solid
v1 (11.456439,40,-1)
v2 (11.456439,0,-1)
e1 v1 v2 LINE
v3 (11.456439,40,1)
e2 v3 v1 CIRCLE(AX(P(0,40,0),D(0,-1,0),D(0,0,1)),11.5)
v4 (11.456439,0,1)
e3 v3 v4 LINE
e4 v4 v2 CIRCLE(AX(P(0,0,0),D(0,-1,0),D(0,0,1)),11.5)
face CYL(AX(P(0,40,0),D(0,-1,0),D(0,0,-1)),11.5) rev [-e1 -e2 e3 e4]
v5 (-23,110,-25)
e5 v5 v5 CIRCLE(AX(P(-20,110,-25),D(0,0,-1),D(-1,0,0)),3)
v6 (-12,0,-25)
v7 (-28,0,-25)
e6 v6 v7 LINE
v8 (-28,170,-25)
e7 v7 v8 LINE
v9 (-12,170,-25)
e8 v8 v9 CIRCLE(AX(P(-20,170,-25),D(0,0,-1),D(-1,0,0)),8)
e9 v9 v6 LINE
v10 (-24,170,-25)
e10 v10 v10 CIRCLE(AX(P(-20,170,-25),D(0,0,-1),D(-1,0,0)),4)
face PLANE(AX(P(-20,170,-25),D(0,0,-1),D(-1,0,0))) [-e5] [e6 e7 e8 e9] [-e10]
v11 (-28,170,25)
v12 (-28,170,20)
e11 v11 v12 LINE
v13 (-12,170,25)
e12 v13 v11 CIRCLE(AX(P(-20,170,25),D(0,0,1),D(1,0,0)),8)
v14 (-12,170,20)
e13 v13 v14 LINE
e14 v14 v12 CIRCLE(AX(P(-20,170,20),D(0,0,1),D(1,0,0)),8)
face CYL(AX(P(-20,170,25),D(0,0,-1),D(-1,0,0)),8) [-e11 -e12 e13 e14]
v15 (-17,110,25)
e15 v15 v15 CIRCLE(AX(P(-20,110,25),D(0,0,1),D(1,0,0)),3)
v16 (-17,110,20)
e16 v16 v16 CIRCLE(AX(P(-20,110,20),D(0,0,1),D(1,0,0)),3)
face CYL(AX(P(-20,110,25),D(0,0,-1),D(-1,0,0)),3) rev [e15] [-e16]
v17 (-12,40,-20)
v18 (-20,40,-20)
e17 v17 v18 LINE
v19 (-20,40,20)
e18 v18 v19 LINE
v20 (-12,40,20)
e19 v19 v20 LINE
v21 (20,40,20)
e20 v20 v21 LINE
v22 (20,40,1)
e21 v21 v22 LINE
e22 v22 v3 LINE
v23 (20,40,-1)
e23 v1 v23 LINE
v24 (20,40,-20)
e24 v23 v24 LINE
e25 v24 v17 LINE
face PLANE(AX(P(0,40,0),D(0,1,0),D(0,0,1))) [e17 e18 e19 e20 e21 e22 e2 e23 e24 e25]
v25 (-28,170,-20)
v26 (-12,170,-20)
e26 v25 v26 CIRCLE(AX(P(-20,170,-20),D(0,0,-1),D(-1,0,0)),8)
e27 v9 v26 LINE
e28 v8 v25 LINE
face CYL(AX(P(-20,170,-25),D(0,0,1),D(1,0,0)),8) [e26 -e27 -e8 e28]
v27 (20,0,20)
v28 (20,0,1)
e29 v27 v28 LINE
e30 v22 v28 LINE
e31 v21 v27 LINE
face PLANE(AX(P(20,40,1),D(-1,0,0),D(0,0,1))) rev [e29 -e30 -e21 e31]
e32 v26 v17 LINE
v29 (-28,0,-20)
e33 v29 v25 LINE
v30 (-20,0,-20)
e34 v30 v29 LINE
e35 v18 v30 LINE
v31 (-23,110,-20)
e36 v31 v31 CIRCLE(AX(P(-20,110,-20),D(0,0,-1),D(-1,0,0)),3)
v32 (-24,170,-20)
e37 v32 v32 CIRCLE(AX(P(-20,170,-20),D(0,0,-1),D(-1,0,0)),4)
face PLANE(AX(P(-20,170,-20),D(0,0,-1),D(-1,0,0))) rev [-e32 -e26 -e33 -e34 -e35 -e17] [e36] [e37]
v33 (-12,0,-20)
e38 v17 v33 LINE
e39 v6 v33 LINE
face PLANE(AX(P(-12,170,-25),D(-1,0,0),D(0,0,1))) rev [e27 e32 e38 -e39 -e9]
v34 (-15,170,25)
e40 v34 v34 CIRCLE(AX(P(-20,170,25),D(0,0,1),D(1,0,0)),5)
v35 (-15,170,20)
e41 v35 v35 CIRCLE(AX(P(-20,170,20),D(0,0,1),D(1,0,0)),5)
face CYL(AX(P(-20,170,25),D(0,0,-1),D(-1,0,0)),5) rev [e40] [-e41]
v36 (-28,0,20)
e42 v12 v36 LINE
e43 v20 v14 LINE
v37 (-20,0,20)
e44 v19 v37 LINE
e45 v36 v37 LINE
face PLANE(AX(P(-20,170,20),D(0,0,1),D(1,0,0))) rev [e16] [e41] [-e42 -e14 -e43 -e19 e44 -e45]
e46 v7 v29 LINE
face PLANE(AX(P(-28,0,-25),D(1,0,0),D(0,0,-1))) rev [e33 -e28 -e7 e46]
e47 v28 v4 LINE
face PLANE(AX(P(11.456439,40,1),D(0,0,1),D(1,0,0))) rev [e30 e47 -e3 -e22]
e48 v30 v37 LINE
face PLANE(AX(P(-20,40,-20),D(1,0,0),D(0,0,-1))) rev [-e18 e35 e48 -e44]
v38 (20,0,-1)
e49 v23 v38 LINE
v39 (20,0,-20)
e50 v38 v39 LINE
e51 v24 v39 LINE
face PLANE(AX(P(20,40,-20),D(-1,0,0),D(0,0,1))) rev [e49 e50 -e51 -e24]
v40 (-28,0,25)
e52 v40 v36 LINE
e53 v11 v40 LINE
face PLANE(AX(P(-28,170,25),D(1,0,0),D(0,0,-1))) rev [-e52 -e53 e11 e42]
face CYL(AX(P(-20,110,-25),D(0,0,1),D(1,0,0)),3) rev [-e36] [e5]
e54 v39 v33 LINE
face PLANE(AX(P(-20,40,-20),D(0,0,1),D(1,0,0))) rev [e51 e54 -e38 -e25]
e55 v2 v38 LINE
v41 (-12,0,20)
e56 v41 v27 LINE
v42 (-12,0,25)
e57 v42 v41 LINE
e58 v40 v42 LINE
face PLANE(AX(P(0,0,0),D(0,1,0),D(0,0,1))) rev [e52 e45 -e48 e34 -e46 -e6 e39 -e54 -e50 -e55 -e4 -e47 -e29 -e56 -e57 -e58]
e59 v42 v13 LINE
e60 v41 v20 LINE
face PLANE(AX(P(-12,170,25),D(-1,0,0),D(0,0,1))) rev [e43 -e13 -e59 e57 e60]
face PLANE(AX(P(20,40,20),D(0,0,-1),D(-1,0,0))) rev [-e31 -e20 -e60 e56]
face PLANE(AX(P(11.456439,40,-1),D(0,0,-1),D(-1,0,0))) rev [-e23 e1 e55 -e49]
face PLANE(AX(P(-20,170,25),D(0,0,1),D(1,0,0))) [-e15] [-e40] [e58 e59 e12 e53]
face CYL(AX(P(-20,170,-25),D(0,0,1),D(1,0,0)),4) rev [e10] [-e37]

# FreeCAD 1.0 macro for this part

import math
import FreeCAD as App
import Part
import Sketcher

V = App.Vector

doc = App.newDocument("Part")
body = doc.addObject("PartDesign::Body", "Body")

# Sketch on XZ plane
sketch1 = body.newObject("Sketcher::SketchObject", "Sketch")
sketch1.AttachmentSupport = (doc.getObject("XZ_Plane"), [""])
sketch1.MapMode = "FlatFace"
sketch1.addGeometry(Part.LineSegment(V(20, -20, 0), V(-20, -20, 0)), False)
sketch1.addGeometry(Part.LineSegment(V(-20, -20, 0), V(-20, 20, 0)), False)
sketch1.addGeometry(Part.LineSegment(V(-20, 20, 0), V(20, 20, 0)), False)
sketch1.addGeometry(Part.LineSegment(V(20, 20, 0), V(20, 1, 0)), False)
sketch1.addGeometry(Part.LineSegment(V(20, 1, 0), V(11.5, 1, 0)), False)
sketch1.addGeometry(Part.ArcOfCircle(Part.Circle(V(0, 0, 0), V(0, 0, 1), 11.5), math.radians(5), math.radians(355)), False)
sketch1.addGeometry(Part.LineSegment(V(11.5, -1, 0), V(20, -1, 0)), False)
sketch1.addGeometry(Part.LineSegment(V(20, -1, 0), V(20, -20, 0)), False)
sketch1.addConstraint(Sketcher.Constraint("Coincident", 0, 2, 1, 1))
sketch1.addConstraint(Sketcher.Constraint("Coincident", 1, 2, 2, 1))
sketch1.addConstraint(Sketcher.Constraint("Coincident", 2, 2, 3, 1))
sketch1.addConstraint(Sketcher.Constraint("Coincident", 3, 2, 4, 1))
sketch1.addConstraint(Sketcher.Constraint("Coincident", 4, 2, 5, 1))
sketch1.addConstraint(Sketcher.Constraint("Coincident", 5, 2, 6, 1))
sketch1.addConstraint(Sketcher.Constraint("Coincident", 6, 2, 7, 1))
sketch1.addConstraint(Sketcher.Constraint("Coincident", 7, 2, 0, 1))
sketch1.addConstraint(Sketcher.Constraint("Horizontal", 0))
sketch1.addConstraint(Sketcher.Constraint("Vertical", 1))
sketch1.addConstraint(Sketcher.Constraint("Horizontal", 2))
sketch1.addConstraint(Sketcher.Constraint("Vertical", 3))
sketch1.addConstraint(Sketcher.Constraint("Horizontal", 4))
sketch1.addConstraint(Sketcher.Constraint("Horizontal", 6))
sketch1.addConstraint(Sketcher.Constraint("Vertical", 7))
sketch1.addConstraint(Sketcher.Constraint("Coincident", 5, 3, -1, 1))
sketch1.addConstraint(Sketcher.Constraint("Symmetric", 0, 2, 2, 2, -1, 1))
sketch1.addConstraint(Sketcher.Constraint("Symmetric", 3, 2, 6, 2, -1))
sketch1.addConstraint(Sketcher.Constraint("Equal", 2, 1))
sketch1.addConstraint(Sketcher.Constraint("Radius", 5, 11.5))
sketch1.addConstraint(Sketcher.Constraint("DistanceX", 0, 2, 0, 1, 40.0))
sketch1.addConstraint(Sketcher.Constraint("DistanceY", 3, 2, 3, 1, 19.0))
pad1 = body.newObject("PartDesign::Pad", "Pad")
pad1.Profile = sketch1
pad1.Length = 40
pad1.Reversed = True

# Sketch on XY plane
sketch2 = body.newObject("Sketcher::SketchObject", "Sketch001")
sketch2.AttachmentSupport = (doc.getObject("XY_Plane"), [""])
sketch2.MapMode = "FlatFace"
sketch2.AttachmentOffset = App.Placement(V(0, 0, 20), App.Rotation())
sketch2.addGeometry(Part.LineSegment(V(-28, 170, 0), V(-28, 0, 0)), False)
sketch2.addGeometry(Part.LineSegment(V(-28, 0, 0), V(-12, 0, 0)), False)
sketch2.addGeometry(Part.LineSegment(V(-12, 0, 0), V(-12, 170, 0)), False)
sketch2.addGeometry(Part.ArcOfCircle(Part.Circle(V(-20, 170, 0), V(0, 0, 1), 8), math.radians(0), math.radians(180)), False)
sketch2.addGeometry(Part.Circle(V(-20, 110, 0), V(0, 0, 1), 3), False)
sketch2.addGeometry(Part.Circle(V(-20, 170, 0), V(0, 0, 1), 5), False)
sketch2.addConstraint(Sketcher.Constraint("Coincident", 0, 2, 1, 1))
sketch2.addConstraint(Sketcher.Constraint("Coincident", 1, 2, 2, 1))
sketch2.addConstraint(Sketcher.Constraint("Tangent", 2, 2, 3, 1))
sketch2.addConstraint(Sketcher.Constraint("Tangent", 3, 2, 0, 1))
sketch2.addConstraint(Sketcher.Constraint("Vertical", 0))
sketch2.addConstraint(Sketcher.Constraint("Horizontal", 1))
sketch2.addConstraint(Sketcher.Constraint("Vertical", 2))
sketch2.addConstraint(Sketcher.Constraint("Coincident", 5, 3, 3, 3))
sketch2.addConstraint(Sketcher.Constraint("PointOnObject", 0, 2, -1))
sketch2.addConstraint(Sketcher.Constraint("Vertical", 3, 3, 4, 3))
sketch2.addConstraint(Sketcher.Constraint("Diameter", 4, 6.0))
sketch2.addConstraint(Sketcher.Constraint("Diameter", 5, 10.0))
sketch2.addConstraint(Sketcher.Constraint("Radius", 3, 8.0))
sketch2.addConstraint(Sketcher.Constraint("DistanceY", 0, 2, 0, 1, 170.0))
sketch2.addConstraint(Sketcher.Constraint("DistanceX", 3, 3, -1, 1, 20.0))
sketch2.addConstraint(Sketcher.Constraint("DistanceY", -1, 1, 4, 3, 110.0))
pad2 = body.newObject("PartDesign::Pad", "Pad001")
pad2.Profile = sketch2
pad2.Length = 5

# Sketch on XY plane
sketch3 = body.newObject("Sketcher::SketchObject", "Sketch002")
sketch3.AttachmentSupport = (doc.getObject("XY_Plane"), [""])
sketch3.MapMode = "FlatFace"
sketch3.AttachmentOffset = App.Placement(V(0, 0, -25), App.Rotation())
sketch3.addGeometry(Part.LineSegment(V(-12, 0, 0), V(-28, 0, 0)), False)
sketch3.addGeometry(Part.LineSegment(V(-28, 0, 0), V(-28, 170, 0)), False)
sketch3.addGeometry(Part.ArcOfCircle(Part.Circle(V(-20, 170, 0), V(0, 0, 1), 8), math.radians(0), math.radians(180)), False)
sketch3.addGeometry(Part.LineSegment(V(-12, 170, 0), V(-12, 0, 0)), False)
sketch3.addGeometry(Part.Circle(V(-20, 110, 0), V(0, 0, 1), 3), False)
sketch3.addGeometry(Part.Circle(V(-20, 170, 0), V(0, 0, 1), 4), False)
sketch3.addConstraint(Sketcher.Constraint("Coincident", 0, 2, 1, 1))
sketch3.addConstraint(Sketcher.Constraint("Tangent", 1, 2, 2, 2))
sketch3.addConstraint(Sketcher.Constraint("Tangent", 2, 1, 3, 1))
sketch3.addConstraint(Sketcher.Constraint("Coincident", 3, 2, 0, 1))
sketch3.addConstraint(Sketcher.Constraint("Horizontal", 0))
sketch3.addConstraint(Sketcher.Constraint("Vertical", 1))
sketch3.addConstraint(Sketcher.Constraint("Vertical", 3))
sketch3.addConstraint(Sketcher.Constraint("Coincident", 5, 3, 2, 3))
sketch3.addConstraint(Sketcher.Constraint("PointOnObject", 0, 2, -1))
sketch3.addConstraint(Sketcher.Constraint("Vertical", 2, 3, 4, 3))
sketch3.addConstraint(Sketcher.Constraint("Diameter", 4, 6.0))
sketch3.addConstraint(Sketcher.Constraint("Diameter", 5, 8.0))
sketch3.addConstraint(Sketcher.Constraint("Radius", 2, 8.0))
sketch3.addConstraint(Sketcher.Constraint("DistanceY", 1, 1, 1, 2, 170.0))
sketch3.addConstraint(Sketcher.Constraint("DistanceX", 2, 3, -1, 1, 20.0))
sketch3.addConstraint(Sketcher.Constraint("DistanceY", -1, 1, 4, 3, 110.0))
pad3 = body.newObject("PartDesign::Pad", "Pad002")
pad3.Profile = sketch3
pad3.Length = 5

doc.recompute()
